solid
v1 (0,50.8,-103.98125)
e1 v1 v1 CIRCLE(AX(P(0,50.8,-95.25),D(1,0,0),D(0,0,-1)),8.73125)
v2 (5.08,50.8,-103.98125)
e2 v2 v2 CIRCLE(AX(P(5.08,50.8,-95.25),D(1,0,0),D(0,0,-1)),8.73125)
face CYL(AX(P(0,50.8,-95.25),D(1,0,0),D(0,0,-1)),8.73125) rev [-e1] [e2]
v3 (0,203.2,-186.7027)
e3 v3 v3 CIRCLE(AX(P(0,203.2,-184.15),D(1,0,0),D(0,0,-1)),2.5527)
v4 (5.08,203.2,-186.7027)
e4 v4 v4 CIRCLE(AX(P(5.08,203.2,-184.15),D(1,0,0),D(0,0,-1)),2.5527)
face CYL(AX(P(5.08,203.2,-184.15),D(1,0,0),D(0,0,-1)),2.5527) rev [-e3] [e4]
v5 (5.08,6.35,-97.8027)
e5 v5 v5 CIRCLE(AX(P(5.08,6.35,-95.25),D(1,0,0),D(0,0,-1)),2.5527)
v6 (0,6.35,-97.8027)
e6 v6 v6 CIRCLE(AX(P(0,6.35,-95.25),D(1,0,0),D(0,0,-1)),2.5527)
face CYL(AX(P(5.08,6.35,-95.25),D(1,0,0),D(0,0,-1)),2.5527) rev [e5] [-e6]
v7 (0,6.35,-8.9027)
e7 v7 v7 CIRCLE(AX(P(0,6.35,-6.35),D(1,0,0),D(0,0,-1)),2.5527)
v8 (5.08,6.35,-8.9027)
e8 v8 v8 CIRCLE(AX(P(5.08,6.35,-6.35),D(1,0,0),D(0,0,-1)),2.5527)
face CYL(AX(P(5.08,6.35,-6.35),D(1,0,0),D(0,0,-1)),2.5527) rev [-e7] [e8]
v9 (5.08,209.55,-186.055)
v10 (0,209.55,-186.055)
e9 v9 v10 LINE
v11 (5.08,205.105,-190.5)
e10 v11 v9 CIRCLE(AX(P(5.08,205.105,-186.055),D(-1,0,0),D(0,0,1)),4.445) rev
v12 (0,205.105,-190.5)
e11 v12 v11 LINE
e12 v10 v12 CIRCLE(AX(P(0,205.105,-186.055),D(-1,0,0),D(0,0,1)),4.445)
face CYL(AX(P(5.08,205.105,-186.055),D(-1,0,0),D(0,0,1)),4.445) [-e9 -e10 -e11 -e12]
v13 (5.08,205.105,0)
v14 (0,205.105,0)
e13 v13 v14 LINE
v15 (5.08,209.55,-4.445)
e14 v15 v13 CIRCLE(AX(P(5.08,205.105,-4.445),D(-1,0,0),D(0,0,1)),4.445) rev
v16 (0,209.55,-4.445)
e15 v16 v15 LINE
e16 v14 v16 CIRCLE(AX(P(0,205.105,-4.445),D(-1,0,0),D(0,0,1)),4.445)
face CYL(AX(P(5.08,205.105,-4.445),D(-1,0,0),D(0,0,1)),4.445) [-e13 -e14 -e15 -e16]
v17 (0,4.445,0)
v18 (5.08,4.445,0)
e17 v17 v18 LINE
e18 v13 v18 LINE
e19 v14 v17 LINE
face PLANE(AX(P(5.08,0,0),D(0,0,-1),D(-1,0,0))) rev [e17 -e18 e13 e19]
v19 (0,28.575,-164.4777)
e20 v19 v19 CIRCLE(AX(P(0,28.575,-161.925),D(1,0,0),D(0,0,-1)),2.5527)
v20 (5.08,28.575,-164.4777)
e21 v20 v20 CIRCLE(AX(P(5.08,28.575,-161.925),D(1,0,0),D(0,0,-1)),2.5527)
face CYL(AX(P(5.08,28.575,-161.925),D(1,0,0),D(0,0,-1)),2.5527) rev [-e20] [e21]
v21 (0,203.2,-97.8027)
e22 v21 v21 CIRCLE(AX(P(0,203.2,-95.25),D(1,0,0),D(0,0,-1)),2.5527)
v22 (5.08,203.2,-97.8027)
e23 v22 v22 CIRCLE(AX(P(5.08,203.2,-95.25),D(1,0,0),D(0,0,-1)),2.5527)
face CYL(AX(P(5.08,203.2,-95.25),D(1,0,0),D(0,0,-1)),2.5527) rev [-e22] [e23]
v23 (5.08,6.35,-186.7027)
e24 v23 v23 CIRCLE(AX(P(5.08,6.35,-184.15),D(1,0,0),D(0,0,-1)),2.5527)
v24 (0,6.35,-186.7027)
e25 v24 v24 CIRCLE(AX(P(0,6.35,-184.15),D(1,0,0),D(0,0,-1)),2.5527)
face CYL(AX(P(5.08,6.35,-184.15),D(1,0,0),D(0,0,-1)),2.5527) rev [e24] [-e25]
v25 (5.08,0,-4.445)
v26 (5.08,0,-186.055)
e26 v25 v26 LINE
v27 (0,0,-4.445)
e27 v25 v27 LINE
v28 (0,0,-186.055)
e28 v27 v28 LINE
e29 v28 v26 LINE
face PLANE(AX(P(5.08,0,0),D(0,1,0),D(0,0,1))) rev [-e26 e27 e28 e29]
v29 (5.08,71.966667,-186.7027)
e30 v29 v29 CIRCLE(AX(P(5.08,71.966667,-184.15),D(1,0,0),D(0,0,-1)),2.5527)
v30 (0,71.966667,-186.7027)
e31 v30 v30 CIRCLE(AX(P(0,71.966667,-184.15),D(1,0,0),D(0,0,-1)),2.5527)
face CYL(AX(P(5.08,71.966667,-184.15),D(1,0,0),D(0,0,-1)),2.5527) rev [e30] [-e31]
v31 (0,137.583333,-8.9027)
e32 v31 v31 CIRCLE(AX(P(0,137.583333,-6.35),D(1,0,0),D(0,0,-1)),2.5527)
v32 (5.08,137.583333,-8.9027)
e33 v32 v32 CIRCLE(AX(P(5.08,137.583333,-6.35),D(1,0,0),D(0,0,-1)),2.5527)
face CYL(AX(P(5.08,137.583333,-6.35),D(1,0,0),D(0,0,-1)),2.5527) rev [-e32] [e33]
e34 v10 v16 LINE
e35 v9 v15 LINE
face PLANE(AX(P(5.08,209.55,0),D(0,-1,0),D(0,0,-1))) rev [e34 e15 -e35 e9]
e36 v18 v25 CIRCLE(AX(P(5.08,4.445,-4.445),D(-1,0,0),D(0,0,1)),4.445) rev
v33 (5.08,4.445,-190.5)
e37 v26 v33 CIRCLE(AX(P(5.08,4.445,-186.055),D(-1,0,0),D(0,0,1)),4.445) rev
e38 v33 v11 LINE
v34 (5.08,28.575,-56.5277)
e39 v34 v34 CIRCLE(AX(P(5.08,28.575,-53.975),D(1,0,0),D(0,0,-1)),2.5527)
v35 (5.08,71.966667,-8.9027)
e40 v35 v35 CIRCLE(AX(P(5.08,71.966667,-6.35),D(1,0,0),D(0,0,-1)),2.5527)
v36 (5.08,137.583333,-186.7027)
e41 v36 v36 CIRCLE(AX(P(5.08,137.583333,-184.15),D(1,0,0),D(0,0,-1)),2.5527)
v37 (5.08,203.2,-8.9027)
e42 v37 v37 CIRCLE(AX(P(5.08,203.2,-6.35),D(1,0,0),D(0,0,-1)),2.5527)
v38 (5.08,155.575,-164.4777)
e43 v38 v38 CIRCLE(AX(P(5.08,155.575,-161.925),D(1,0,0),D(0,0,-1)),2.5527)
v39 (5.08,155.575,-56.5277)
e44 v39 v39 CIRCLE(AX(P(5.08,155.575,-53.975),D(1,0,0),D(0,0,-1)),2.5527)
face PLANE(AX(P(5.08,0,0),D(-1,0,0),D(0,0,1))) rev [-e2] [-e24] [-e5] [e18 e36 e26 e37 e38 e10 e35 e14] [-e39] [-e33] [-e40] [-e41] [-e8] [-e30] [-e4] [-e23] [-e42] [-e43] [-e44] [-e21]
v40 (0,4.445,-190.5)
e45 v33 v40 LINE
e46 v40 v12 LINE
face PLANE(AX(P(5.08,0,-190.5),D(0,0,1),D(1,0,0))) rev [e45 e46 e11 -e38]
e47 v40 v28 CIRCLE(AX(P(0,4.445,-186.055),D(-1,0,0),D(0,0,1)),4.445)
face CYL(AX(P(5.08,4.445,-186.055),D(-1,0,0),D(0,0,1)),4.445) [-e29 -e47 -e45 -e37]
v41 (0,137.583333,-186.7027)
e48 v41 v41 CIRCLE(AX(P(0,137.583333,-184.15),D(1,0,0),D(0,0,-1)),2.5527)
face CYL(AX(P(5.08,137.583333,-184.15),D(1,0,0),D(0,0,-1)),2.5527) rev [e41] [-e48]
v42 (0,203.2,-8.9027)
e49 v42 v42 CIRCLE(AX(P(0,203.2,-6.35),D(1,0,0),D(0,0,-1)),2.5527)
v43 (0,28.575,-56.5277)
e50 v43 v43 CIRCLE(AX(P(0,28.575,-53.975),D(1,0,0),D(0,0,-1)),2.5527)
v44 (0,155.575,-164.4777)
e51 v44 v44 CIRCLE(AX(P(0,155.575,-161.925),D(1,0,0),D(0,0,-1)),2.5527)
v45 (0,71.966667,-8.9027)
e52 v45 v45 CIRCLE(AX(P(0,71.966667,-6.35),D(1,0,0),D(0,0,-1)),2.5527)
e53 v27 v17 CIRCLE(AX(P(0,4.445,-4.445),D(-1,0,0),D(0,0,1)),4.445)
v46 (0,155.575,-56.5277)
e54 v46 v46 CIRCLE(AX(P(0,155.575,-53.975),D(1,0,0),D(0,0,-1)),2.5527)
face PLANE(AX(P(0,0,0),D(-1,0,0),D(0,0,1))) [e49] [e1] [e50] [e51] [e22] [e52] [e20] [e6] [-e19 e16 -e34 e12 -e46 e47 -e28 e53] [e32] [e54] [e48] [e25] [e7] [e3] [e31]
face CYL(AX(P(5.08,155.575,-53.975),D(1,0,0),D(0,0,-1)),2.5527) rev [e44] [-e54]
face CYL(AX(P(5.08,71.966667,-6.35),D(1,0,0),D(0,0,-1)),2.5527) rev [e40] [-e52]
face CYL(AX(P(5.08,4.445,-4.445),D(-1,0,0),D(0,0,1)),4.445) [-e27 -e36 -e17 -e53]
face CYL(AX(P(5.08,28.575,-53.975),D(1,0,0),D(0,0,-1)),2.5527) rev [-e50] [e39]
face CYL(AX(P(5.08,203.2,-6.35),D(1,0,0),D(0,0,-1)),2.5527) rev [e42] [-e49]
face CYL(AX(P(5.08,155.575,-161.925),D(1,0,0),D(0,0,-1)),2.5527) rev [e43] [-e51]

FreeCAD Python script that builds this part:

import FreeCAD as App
import Part
import Sketcher
Q = App.Units.Quantity


def edges_at(feature, points):
    """Names of the edges that pass closest to the given points."""
    edges = feature.Shape.Edges
    near = lambda p: min(range(len(edges)), key=lambda i: edges[i].distToShape(Part.Vertex(*p))[0])
    return sorted({f"Edge{near(p) + 1}" for p in points})


def add_polygon(sketch, points):
    """Adds a closed chain of lines whose ends are joined by coincident constraints."""
    first, n = sketch.GeometryCount, len(points)
    for a, b in zip(points, points[1:] + points[:1]):
        sketch.addGeometry(Part.LineSegment(App.Vector(*a, 0), App.Vector(*b, 0)), False)
    for i in range(n):
        sketch.addConstraint(Sketcher.Constraint("Coincident", first + i, 2, first + (i + 1) % n, 1))

doc = App.newDocument("Part")
body = doc.addObject("PartDesign::Body", "Body")

# Sketch on YZ plane
sketch1 = body.newObject("Sketcher::SketchObject", "Sketch")
sketch1.AttachmentSupport = (doc.getObject("YZ_Plane"), [""])
sketch1.MapMode = "FlatFace"
add_polygon(sketch1, [(209.55, 0), (0, 0), (0, -190.5), (209.55, -190.5)])  # lines 0-3
sketch1.addConstraint(Sketcher.Constraint("Horizontal", 0))
sketch1.addConstraint(Sketcher.Constraint("Vertical", 1))
sketch1.addConstraint(Sketcher.Constraint("Horizontal", 2))
sketch1.addConstraint(Sketcher.Constraint("Vertical", 3))
sketch1.addConstraint(Sketcher.Constraint("Coincident", 0, 2, -1, 1))
sketch1.addConstraint(Sketcher.Constraint("DistanceY", 1, 2, 1, 1, Q("7.5 in")))
sketch1.addConstraint(Sketcher.Constraint("DistanceX", 0, 2, 0, 1, Q("8.25 in")))
pad1 = body.newObject("PartDesign::Pad", "Pad")
pad1.Profile = sketch1
pad1.Length = Q("0.2 in")

# Sketch on YZ plane
sketch2 = body.newObject("Sketcher::SketchObject", "Sketch001")
sketch2.AttachmentSupport = (doc.getObject("YZ_Plane"), [""])
sketch2.MapMode = "FlatFace"
sketch2.AttachmentOffset = App.Placement(App.Vector(0, 0, 0.2 * 25.4), App.Rotation())
sketch2.addGeometry(Part.Circle(App.Vector(50.8, -95.25, 0), App.Vector(0, 0, 1), 8.73125), False)
sketch2.addConstraint(Sketcher.Constraint("Diameter", 0, Q("0.6875 in")))
sketch2.addConstraint(Sketcher.Constraint("DistanceX", -1, 1, 0, 3, Q("2 in")))
sketch2.addConstraint(Sketcher.Constraint("DistanceY", 0, 3, -1, 1, Q("3.75 in")))
pocket1 = body.newObject("PartDesign::Pocket", "Pocket")
pocket1.Profile = sketch2
pocket1.Type = "ThroughAll"

# Sketch on YZ plane
sketch3 = body.newObject("Sketcher::SketchObject", "Sketch002")
sketch3.AttachmentSupport = (doc.getObject("YZ_Plane"), [""])
sketch3.MapMode = "FlatFace"
sketch3.AttachmentOffset = App.Placement(App.Vector(0, 0, 0.2 * 25.4), App.Rotation())
sketch3.addGeometry(Part.Circle(App.Vector(28.575, -53.975, 0), App.Vector(0, 0, 1), 2.5527), False)
sketch3.addGeometry(Part.Circle(App.Vector(155.575, -53.975, 0), App.Vector(0, 0, 1), 2.5527), False)
sketch3.addGeometry(Part.Circle(App.Vector(155.575, -161.925, 0), App.Vector(0, 0, 1), 2.5527), False)
sketch3.addGeometry(Part.Circle(App.Vector(28.575, -161.925, 0), App.Vector(0, 0, 1), 2.5527), False)
sketch3.addConstraint(Sketcher.Constraint("Equal", 0, 1))
sketch3.addConstraint(Sketcher.Constraint("Equal", 1, 2))
sketch3.addConstraint(Sketcher.Constraint("Equal", 2, 3))
sketch3.addConstraint(Sketcher.Constraint("Horizontal", 0, 3, 1, 3))
sketch3.addConstraint(Sketcher.Constraint("Horizontal", 2, 3, 3, 3))
sketch3.addConstraint(Sketcher.Constraint("Vertical", 1, 3, 2, 3))
sketch3.addConstraint(Sketcher.Constraint("Vertical", 0, 3, 3, 3))
sketch3.addConstraint(Sketcher.Constraint("Diameter", 0, Q("0.201 in")))
sketch3.addConstraint(Sketcher.Constraint("DistanceX", 0, 3, 1, 3, Q("5 in")))
sketch3.addConstraint(Sketcher.Constraint("DistanceY", 2, 3, 1, 3, Q("4.25 in")))
sketch3.addConstraint(Sketcher.Constraint("DistanceX", -1, 1, 0, 3, Q("1.125 in")))
sketch3.addConstraint(Sketcher.Constraint("DistanceY", 0, 3, -1, 1, Q("2.125 in")))
doc.recompute()
hole = body.newObject("PartDesign::Hole", "Hole")
hole.Profile = sketch3
hole.ThreadType = "None"
hole.Diameter = Q("0.201 in")
hole.DepthType = "ThroughAll"
doc.recompute()

fillet = body.newObject("PartDesign::Fillet", "Fillet")
fillet.Base = (hole, edges_at(hole, [
    (2.54, 209.55, 0),
    (2.54, 209.55, -190.5),
    (2.54, 0, -190.5),
    (2.54, 0, 0),
]))
fillet.Radius = Q("0.175 in")

# Sketch on YZ plane
sketch4 = body.newObject("Sketcher::SketchObject", "Sketch003")
sketch4.AttachmentSupport = (doc.getObject("YZ_Plane"), [""])
sketch4.MapMode = "FlatFace"
sketch4.AttachmentOffset = App.Placement(App.Vector(0, 0, 0.2 * 25.4), App.Rotation())
sketch4.addGeometry(Part.Circle(App.Vector(203.2, -6.35, 0), App.Vector(0, 0, 1), 2.5527), False)
sketch4.addGeometry(Part.Circle(App.Vector(6.35, -184.15, 0), App.Vector(0, 0, 1), 2.5527), False)
sketch4.addGeometry(Part.Circle(App.Vector(6.35, -6.35, 0), App.Vector(0, 0, 1), 2.5527), False)
sketch4.addGeometry(Part.Circle(App.Vector(203.2, -184.15, 0), App.Vector(0, 0, 1), 2.5527), False)
sketch4.addGeometry(Part.Circle(App.Vector(6.35, -95.25, 0), App.Vector(0, 0, 1), 2.5527), False)
sketch4.addGeometry(Part.Circle(App.Vector(203.2, -95.25, 0), App.Vector(0, 0, 1), 2.5527), False)
sketch4.addGeometry(Part.Circle(App.Vector(137.583333, -6.35, 0), App.Vector(0, 0, 1), 2.5527), False)
sketch4.addGeometry(Part.Circle(App.Vector(71.966667, -6.35, 0), App.Vector(0, 0, 1), 2.5527), False)
sketch4.addGeometry(Part.Circle(App.Vector(71.966667, -184.15, 0), App.Vector(0, 0, 1), 2.5527), False)
sketch4.addGeometry(Part.Circle(App.Vector(137.583333, -184.15, 0), App.Vector(0, 0, 1), 2.5527), False)
sketch4.addConstraint(Sketcher.Constraint("Equal", 0, 1))
sketch4.addConstraint(Sketcher.Constraint("Equal", 1, 2))
sketch4.addConstraint(Sketcher.Constraint("Equal", 2, 3))
sketch4.addConstraint(Sketcher.Constraint("Equal", 3, 4))
sketch4.addConstraint(Sketcher.Constraint("Equal", 4, 5))
sketch4.addConstraint(Sketcher.Constraint("Equal", 5, 6))
sketch4.addConstraint(Sketcher.Constraint("Equal", 6, 7))
sketch4.addConstraint(Sketcher.Constraint("Equal", 7, 8))
sketch4.addConstraint(Sketcher.Constraint("Equal", 8, 9))
sketch4.addConstraint(Sketcher.Constraint("Horizontal", 0, 3, 2, 3))
sketch4.addConstraint(Sketcher.Constraint("Horizontal", 1, 3, 3, 3))
sketch4.addConstraint(Sketcher.Constraint("Horizontal", 4, 3, 5, 3))
sketch4.addConstraint(Sketcher.Constraint("Horizontal", 2, 3, 6, 3))
sketch4.addConstraint(Sketcher.Constraint("Horizontal", 6, 3, 7, 3))
sketch4.addConstraint(Sketcher.Constraint("Horizontal", 3, 3, 8, 3))
sketch4.addConstraint(Sketcher.Constraint("Horizontal", 8, 3, 9, 3))
sketch4.addConstraint(Sketcher.Constraint("Vertical", 1, 3, 2, 3))
sketch4.addConstraint(Sketcher.Constraint("Vertical", 0, 3, 3, 3))
sketch4.addConstraint(Sketcher.Constraint("Vertical", 2, 3, 4, 3))
sketch4.addConstraint(Sketcher.Constraint("Vertical", 3, 3, 5, 3))
sketch4.addConstraint(Sketcher.Constraint("Vertical", 7, 3, 8, 3))
sketch4.addConstraint(Sketcher.Constraint("Vertical", 6, 3, 9, 3))
sketch4.addConstraint(Sketcher.Constraint("Diameter", 0, Q("0.201 in")))
sketch4.addConstraint(Sketcher.Constraint("DistanceX", -1, 1, 0, 3, Q("8 in")))
sketch4.addConstraint(Sketcher.Constraint("DistanceY", 1, 3, 0, 3, Q("7 in")))
sketch4.addConstraint(Sketcher.Constraint("DistanceY", 1, 3, 4, 3, Q("3.5 in")))
sketch4.addConstraint(Sketcher.Constraint("DistanceY", 0, 3, -1, 1, Q("0.25 in")))
sketch4.addConstraint(Sketcher.Constraint("DistanceX", -1, 1, 1, 3, Q("0.25 in")))
sketch4.addConstraint(Sketcher.Constraint("DistanceX", -1, 1, 6, 3, Q("137.583333 mm")))
sketch4.addConstraint(Sketcher.Constraint("DistanceX", -1, 1, 7, 3, Q("71.966667 mm")))
doc.recompute()
hole2 = body.newObject("PartDesign::Hole", "Hole001")
hole2.Profile = sketch4
hole2.ThreadType = "None"
hole2.Diameter = Q("0.201 in")
hole2.DepthType = "ThroughAll"

doc.recompute()
